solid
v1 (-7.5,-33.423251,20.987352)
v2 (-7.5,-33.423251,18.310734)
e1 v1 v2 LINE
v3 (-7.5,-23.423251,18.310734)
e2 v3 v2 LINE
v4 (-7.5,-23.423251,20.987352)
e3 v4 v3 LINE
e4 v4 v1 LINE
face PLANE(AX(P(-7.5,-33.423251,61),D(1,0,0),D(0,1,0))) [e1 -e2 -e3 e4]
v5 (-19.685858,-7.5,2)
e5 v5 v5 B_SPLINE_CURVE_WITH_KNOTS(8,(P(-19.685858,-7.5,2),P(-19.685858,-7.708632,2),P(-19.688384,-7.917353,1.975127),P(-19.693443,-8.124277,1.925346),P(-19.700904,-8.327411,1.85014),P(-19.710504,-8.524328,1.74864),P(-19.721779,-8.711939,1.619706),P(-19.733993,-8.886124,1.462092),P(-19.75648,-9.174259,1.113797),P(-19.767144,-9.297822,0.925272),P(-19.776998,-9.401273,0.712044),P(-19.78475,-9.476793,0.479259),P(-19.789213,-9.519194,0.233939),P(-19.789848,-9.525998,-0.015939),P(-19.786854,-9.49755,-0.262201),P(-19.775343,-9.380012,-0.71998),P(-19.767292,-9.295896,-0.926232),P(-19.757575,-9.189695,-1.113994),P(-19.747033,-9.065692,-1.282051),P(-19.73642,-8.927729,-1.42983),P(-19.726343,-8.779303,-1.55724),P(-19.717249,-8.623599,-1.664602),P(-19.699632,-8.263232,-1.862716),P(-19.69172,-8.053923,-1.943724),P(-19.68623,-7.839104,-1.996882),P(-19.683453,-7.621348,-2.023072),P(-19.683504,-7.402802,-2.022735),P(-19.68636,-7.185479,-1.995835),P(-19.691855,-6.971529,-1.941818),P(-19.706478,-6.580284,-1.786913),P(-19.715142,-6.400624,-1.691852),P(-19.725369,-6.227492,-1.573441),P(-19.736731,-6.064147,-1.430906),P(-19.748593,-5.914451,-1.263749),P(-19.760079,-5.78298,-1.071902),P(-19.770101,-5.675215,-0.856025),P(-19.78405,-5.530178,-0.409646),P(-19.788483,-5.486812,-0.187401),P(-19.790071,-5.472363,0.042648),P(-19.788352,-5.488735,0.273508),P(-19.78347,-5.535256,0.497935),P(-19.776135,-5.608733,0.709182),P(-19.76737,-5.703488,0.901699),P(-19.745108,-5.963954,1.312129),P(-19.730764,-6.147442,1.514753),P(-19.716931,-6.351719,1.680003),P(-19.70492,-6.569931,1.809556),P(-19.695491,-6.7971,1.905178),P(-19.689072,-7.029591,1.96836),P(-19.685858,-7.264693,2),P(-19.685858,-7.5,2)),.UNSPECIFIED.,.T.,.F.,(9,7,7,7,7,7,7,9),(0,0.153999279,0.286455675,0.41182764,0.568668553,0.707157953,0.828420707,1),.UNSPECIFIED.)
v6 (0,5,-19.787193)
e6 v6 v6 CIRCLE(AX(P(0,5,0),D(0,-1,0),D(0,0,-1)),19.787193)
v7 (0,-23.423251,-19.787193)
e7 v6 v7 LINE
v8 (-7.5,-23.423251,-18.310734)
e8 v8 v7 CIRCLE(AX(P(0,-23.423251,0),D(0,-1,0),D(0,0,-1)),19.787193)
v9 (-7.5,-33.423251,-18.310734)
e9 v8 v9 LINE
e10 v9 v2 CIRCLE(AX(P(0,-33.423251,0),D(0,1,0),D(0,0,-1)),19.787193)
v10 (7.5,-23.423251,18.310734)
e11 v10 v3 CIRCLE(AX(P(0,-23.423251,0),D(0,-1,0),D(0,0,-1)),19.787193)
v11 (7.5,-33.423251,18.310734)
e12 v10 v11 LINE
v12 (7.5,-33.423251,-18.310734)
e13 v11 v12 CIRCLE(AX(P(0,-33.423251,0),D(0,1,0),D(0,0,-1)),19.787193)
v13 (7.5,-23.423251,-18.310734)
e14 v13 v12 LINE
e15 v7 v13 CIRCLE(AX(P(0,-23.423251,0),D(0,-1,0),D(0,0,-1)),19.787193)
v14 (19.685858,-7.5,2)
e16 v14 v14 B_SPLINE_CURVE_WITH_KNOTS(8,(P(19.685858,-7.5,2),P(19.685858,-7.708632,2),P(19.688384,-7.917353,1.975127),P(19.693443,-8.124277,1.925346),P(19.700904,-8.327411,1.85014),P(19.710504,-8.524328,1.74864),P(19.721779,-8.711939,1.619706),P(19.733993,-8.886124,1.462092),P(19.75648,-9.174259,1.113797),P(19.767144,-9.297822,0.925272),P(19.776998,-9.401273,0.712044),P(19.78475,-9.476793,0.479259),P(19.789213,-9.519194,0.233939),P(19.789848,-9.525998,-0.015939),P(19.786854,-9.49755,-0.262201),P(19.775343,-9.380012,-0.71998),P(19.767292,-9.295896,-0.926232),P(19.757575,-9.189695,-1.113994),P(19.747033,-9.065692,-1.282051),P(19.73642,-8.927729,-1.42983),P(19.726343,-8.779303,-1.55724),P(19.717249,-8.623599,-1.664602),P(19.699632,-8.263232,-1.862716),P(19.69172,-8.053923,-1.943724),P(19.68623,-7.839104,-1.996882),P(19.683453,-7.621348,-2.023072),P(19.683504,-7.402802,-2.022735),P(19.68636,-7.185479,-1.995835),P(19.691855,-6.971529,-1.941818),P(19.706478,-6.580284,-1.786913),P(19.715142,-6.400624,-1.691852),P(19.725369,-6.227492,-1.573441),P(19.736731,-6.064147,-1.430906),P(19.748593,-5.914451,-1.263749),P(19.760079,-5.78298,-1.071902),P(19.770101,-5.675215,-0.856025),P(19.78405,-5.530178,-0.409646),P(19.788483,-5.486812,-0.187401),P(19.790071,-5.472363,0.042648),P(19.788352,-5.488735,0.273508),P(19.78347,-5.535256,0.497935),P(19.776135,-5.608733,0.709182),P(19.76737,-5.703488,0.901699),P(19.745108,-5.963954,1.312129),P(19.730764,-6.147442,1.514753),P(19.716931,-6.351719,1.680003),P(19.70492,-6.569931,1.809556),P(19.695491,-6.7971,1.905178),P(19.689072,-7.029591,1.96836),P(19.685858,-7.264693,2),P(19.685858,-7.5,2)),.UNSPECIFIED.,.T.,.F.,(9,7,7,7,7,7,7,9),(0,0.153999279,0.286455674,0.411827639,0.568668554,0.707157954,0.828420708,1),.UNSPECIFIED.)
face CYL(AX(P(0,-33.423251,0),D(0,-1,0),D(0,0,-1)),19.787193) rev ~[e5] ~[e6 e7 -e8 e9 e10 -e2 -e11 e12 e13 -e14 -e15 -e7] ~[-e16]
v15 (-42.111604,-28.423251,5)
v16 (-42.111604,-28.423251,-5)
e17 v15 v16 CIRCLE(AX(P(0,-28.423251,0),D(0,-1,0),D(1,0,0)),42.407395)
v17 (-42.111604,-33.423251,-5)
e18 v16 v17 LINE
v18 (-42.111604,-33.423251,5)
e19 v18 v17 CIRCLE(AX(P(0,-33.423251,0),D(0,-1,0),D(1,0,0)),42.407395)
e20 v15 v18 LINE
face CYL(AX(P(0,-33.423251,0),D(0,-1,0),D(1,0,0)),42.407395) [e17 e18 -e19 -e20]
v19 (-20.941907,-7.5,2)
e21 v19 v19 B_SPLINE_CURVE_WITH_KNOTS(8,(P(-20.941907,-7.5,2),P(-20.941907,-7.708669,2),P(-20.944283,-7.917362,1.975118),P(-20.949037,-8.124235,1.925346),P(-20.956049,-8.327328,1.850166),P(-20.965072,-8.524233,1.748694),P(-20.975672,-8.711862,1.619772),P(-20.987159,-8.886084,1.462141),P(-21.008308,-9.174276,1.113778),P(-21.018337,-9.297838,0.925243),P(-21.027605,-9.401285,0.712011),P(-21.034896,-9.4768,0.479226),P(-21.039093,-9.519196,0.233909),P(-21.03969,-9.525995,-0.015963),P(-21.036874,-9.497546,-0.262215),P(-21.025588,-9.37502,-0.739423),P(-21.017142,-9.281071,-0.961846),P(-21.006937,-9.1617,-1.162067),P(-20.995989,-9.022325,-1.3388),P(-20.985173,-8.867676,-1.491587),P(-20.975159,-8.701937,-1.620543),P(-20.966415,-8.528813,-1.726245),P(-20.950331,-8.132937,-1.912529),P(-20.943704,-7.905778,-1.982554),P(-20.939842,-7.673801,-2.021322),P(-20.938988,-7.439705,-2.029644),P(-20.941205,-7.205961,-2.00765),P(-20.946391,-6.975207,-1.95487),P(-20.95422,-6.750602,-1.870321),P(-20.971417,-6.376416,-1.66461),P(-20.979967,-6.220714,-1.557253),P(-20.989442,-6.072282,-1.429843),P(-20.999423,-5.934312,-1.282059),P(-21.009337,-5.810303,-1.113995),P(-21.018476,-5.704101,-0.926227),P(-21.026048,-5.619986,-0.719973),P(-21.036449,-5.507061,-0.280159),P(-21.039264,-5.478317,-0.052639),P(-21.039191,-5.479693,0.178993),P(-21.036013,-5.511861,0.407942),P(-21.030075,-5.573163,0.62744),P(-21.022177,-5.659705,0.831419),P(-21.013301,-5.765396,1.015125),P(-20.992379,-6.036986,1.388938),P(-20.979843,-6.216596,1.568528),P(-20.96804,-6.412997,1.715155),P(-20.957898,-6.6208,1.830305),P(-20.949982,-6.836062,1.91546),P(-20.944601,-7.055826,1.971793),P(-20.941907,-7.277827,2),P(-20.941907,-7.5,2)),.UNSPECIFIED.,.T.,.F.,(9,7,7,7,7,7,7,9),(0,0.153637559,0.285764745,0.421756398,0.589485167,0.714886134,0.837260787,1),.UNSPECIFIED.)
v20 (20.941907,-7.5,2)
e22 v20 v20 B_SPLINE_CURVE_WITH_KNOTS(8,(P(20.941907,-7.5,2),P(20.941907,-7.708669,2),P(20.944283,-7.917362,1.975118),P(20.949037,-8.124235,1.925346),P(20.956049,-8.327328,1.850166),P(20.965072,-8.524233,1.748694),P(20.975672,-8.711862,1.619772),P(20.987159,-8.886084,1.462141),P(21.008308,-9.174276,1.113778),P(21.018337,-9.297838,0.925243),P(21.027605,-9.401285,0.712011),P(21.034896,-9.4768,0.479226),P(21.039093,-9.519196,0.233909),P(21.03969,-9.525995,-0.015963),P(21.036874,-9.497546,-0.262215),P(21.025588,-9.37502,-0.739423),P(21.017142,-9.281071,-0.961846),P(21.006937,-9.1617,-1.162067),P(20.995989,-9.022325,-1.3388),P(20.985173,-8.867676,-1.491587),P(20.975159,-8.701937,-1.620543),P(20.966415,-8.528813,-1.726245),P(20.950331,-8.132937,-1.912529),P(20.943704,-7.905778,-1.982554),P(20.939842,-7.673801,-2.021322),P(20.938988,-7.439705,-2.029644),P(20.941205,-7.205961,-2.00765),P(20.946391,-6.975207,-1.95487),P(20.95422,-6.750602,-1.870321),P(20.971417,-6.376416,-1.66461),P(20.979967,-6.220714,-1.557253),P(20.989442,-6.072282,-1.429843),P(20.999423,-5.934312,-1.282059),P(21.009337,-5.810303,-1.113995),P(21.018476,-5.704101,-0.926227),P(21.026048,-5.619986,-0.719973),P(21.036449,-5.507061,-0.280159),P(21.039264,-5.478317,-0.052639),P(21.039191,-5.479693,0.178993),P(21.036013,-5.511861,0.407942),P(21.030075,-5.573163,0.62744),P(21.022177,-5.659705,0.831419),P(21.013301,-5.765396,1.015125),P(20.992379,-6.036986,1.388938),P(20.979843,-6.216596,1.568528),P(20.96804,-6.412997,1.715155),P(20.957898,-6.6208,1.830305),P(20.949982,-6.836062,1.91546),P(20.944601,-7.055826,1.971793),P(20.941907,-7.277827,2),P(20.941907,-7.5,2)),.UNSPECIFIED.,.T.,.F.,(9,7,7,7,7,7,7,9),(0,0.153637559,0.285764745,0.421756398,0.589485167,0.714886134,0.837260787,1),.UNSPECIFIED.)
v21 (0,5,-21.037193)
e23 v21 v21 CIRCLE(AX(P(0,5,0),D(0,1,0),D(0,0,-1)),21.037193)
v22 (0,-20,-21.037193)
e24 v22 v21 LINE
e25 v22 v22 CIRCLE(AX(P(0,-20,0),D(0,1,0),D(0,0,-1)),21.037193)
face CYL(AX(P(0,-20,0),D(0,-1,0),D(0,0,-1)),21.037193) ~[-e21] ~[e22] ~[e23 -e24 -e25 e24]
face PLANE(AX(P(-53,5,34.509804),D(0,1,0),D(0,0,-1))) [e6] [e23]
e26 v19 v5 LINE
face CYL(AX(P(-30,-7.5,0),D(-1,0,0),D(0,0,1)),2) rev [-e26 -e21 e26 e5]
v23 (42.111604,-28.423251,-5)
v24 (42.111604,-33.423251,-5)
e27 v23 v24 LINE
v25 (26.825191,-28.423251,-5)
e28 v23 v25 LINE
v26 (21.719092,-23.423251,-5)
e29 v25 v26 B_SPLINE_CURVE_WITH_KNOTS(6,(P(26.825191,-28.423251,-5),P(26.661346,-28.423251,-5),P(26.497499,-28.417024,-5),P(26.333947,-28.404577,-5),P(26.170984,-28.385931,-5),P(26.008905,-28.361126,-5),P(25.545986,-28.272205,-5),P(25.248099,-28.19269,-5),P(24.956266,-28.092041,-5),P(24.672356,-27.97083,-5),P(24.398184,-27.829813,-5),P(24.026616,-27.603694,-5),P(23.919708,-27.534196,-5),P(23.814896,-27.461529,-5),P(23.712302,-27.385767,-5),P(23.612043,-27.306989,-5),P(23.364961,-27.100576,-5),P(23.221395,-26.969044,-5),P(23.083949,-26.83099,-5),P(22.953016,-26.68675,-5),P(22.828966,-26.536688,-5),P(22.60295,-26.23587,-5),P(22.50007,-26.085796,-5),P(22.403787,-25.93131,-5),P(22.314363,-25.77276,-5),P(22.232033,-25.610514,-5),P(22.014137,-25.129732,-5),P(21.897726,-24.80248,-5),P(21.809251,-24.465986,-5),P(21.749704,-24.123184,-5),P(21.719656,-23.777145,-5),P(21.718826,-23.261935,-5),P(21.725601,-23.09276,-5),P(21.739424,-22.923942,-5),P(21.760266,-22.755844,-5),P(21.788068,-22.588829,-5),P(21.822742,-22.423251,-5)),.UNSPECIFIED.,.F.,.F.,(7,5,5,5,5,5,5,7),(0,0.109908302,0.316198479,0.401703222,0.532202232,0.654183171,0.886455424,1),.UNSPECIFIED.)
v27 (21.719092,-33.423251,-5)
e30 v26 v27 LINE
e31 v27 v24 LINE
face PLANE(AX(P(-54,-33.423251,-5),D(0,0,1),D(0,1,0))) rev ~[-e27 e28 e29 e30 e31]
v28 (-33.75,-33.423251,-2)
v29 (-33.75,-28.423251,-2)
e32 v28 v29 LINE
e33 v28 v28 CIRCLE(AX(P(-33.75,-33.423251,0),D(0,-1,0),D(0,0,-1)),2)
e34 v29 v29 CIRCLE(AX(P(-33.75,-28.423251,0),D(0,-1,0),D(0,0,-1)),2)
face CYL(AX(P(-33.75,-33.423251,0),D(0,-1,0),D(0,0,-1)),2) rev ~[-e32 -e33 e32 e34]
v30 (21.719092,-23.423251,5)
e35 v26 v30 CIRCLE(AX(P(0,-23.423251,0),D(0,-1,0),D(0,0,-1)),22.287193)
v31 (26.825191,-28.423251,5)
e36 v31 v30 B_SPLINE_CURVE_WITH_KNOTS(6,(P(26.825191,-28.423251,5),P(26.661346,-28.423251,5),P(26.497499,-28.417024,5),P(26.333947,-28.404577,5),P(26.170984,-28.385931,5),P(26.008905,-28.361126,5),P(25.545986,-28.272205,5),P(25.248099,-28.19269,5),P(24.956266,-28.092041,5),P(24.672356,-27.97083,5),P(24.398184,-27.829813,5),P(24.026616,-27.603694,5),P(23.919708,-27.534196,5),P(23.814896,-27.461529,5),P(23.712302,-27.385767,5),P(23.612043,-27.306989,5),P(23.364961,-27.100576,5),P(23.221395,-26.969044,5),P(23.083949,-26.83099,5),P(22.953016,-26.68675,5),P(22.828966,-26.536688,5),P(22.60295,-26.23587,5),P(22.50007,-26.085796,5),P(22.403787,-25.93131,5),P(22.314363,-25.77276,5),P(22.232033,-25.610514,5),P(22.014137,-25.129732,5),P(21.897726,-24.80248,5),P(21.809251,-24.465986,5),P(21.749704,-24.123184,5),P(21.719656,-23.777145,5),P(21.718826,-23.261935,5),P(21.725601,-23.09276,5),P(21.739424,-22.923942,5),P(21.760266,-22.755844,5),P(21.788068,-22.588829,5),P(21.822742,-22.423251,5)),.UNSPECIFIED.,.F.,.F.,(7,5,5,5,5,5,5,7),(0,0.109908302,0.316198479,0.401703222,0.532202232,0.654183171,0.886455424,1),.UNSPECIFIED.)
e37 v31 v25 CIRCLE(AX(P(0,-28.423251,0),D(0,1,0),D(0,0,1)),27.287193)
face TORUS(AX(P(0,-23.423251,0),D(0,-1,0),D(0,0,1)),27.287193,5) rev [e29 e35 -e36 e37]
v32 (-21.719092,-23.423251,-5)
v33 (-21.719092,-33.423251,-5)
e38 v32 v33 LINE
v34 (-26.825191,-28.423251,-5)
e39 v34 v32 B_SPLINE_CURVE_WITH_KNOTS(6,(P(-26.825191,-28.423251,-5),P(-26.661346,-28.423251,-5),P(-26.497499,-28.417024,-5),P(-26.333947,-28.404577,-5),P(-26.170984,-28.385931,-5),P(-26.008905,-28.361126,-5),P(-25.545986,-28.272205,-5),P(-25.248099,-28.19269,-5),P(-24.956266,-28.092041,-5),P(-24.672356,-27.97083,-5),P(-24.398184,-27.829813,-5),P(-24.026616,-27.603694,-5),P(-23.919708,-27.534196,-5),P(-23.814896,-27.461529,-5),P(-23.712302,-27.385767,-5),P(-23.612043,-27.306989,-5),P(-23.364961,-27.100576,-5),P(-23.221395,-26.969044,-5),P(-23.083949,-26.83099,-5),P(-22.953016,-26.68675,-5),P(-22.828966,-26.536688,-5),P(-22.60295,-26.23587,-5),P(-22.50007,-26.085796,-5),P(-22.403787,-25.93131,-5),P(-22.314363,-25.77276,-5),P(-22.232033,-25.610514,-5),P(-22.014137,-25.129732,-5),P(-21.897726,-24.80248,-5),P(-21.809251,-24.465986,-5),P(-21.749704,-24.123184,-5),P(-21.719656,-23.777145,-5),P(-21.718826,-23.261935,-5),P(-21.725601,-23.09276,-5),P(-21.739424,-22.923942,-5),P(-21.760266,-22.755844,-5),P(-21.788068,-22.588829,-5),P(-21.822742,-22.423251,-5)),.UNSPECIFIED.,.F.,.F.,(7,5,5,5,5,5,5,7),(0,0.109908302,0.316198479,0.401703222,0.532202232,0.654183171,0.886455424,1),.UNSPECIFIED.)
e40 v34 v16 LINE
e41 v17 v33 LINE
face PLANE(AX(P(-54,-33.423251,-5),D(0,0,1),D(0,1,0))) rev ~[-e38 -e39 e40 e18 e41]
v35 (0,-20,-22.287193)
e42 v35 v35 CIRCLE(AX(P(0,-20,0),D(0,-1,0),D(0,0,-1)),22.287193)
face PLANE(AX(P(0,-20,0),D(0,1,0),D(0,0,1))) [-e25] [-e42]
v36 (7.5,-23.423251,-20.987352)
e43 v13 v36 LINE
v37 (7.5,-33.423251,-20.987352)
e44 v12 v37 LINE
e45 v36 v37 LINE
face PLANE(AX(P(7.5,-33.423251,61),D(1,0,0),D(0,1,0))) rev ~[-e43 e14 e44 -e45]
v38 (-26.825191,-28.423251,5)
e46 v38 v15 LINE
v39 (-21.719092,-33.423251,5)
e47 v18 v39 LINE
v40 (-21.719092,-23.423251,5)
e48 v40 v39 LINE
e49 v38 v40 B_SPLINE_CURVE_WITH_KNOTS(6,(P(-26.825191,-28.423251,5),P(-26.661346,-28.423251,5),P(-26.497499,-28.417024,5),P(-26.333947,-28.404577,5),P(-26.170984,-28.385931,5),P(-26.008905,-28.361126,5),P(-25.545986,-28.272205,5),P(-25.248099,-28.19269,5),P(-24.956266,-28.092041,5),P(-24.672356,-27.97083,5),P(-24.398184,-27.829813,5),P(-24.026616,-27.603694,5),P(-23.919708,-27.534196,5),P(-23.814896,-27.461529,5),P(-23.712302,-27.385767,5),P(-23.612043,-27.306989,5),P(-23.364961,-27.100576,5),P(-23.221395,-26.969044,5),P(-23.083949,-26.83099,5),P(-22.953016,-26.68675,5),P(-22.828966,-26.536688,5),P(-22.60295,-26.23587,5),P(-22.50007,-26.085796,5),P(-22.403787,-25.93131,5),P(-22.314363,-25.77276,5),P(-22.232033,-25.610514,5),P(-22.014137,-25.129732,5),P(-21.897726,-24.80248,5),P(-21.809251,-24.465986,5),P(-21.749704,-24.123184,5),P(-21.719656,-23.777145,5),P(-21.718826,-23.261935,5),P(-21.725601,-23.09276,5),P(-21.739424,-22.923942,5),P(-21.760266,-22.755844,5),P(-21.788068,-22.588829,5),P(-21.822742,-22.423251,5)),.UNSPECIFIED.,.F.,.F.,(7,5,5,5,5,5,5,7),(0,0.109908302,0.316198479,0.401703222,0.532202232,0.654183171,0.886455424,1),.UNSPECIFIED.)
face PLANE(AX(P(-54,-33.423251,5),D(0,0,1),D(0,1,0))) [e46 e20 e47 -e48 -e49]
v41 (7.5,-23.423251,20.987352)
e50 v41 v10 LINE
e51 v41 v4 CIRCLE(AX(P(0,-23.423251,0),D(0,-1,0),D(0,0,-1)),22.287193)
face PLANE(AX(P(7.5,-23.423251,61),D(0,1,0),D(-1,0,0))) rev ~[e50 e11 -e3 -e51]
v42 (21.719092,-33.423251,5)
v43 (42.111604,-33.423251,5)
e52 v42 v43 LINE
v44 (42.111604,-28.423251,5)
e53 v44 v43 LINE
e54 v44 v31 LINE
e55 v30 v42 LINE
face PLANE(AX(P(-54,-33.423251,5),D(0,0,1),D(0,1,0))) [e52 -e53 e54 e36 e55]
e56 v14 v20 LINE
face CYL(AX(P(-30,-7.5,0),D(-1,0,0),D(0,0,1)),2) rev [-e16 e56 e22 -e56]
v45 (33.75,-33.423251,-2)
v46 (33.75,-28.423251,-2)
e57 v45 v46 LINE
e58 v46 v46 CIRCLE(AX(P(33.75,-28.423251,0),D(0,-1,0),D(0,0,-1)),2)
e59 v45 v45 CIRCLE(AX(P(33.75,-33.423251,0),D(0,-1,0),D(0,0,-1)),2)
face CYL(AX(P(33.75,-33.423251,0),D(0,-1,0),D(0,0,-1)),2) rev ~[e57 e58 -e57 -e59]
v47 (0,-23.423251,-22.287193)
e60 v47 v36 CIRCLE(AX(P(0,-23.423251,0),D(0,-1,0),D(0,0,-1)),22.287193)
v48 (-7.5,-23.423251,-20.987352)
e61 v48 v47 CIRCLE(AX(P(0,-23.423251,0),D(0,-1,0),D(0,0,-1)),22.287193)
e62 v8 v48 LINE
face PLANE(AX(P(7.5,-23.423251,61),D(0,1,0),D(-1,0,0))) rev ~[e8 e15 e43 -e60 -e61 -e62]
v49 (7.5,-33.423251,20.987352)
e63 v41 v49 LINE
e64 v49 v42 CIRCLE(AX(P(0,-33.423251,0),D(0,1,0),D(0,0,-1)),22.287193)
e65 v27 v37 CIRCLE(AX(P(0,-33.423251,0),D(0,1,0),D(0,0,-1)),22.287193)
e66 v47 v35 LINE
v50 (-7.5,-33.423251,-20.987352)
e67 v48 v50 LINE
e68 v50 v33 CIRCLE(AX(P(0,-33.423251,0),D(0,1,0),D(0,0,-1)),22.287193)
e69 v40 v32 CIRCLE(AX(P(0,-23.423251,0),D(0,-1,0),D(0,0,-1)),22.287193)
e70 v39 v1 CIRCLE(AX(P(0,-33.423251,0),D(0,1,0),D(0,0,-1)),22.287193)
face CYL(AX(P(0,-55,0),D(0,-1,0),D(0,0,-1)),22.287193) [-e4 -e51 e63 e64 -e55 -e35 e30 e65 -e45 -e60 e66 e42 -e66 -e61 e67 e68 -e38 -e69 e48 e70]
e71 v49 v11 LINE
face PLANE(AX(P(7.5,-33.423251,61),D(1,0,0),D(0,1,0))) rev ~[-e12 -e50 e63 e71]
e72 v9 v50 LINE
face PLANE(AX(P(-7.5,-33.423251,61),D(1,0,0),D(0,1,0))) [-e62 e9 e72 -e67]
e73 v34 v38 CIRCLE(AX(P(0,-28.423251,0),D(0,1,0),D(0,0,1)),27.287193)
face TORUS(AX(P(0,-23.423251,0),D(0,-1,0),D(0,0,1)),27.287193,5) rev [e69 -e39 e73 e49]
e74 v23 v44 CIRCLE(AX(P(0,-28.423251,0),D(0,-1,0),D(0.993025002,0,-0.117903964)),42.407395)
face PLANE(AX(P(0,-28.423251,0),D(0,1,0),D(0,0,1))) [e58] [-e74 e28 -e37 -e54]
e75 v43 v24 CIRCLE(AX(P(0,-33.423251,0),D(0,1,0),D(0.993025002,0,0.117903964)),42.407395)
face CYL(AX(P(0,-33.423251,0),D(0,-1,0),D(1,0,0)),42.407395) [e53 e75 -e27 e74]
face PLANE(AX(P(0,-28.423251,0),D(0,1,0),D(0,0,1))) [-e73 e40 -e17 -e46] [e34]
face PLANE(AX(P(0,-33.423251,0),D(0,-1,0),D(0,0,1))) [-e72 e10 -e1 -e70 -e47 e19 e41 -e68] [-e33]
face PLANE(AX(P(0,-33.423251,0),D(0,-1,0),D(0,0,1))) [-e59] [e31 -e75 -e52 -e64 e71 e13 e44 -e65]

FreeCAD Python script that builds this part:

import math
import FreeCAD as App
import Part
import Sketcher
from FreeCAD import Vector
Q = App.Units.Quantity


def add_polygon(sketch, points):
    """Adds a closed chain of lines whose ends are joined by coincident constraints."""
    first, n = sketch.GeometryCount, len(points)
    for a, b in zip(points, points[1:] + points[:1]):
        sketch.addGeometry(Part.LineSegment(App.Vector(*a, 0), App.Vector(*b, 0)), False)
    for i in range(n):
        sketch.addConstraint(Sketcher.Constraint("Coincident", first + i, 2, first + (i + 1) % n, 1))

doc = App.newDocument("Part")
params = doc.addObject("Spreadsheet::Sheet", "Params")
for row, (alias, value) in enumerate([
    ("sketch1_diameter", "68 mm"),
    ("pad1_length", "10 mm"),
    ("sketch2_diameter", "4 mm"),
    ("pocket1_length", "10 mm"),
    ("groove_angle", "360 deg"),
    ("groove2_angle", "360 deg"),
    ("pad2_length", "60 mm"),
    ("pocket3_length", "25 mm"),
    ("sketch8_diameter", "4 mm"),
    ("pocket6_length", "25 mm"),
    ("sketch11_diameter", "4 mm"),
    ("sketch13_width", "10 mm"),
    ("pad3_length", "66 mm"),
    ("pad3_length2", "54 mm"),
    ("pocket9_length", "66 mm"),
    ("sketch15_radius", "5 mm"),
    ("sketch15_height", "5 mm"),
    ("groove3_angle", "360 deg"),
    ("sketch16_height", "10 mm"),
    ("pocket10_length", "66 mm"),
    ("sketch17_diameter", "4 mm"),
    ("pocket11_length", "66 mm"),
    ("pocket12_length", "66 mm"),
    ("pad4_length", "12 mm"),
    ("sketch20_width", "15 mm"),
    ("sketch20_height", "10 mm"),
], start=1):
    params.set(f"A{row}", alias)
    params.set(f"B{row}", "=" + value)
    params.setAlias(f"B{row}", alias)

body = doc.addObject("PartDesign::Body", "Body")

sketch1 = body.newObject("Sketcher::SketchObject", "Sketch")
sketch1.AttachmentSupport = (doc.getObject("XZ_Plane"), [""])
sketch1.MapMode = "FlatFace"
sketch1.addGeometry(Part.Circle(Vector(0, 0, 0), Vector(0, 0, 1), 34), False)
sketch1.addConstraint([
    Sketcher.Constraint("Coincident", 0, 3, -1, 1),
    Sketcher.Constraint("Diameter", 0, Q("68 mm")),
])
sketch1.setExpression("Constraints[1]", "Params.sketch1_diameter")
pad1 = body.newObject("PartDesign::Pad", "Pad")
pad1.Profile = sketch1
pad1.setExpression("Length", "Params.pad1_length")
pad1.Reversed = True

sketch2 = body.newObject("Sketcher::SketchObject", "Sketch001")
sketch2.AttachmentSupport = (doc.getObject("XZ_Plane"), [""])
sketch2.MapMode = "FlatFace"
sketch2.addGeometry([
    Part.Circle(Vector(0, 0, 0), Vector(0, 0, 1), 19.8),
    Part.Circle(Vector(-22.1, 12.5, 0), Vector(0, 0, 1), 2),
    Part.Circle(Vector(22.1, 12.5, 0), Vector(0, 0, 1), 2),
    Part.Circle(Vector(22.1, -12.5, 0), Vector(0, 0, 1), 2),
    Part.Circle(Vector(-22.1, -12.5, 0), Vector(0, 0, 1), 2),
], False)
sketch2.addConstraint([
    Sketcher.Constraint("Coincident", 0, 3, -1, 1),
    Sketcher.Constraint("Equal", 1, 2),
    Sketcher.Constraint("Equal", 2, 3),
    Sketcher.Constraint("Equal", 3, 4),
    Sketcher.Constraint("Symmetric", 1, 3, 3, 3, -1, 1),
    Sketcher.Constraint("Symmetric", 2, 3, 4, 3, -1, 1),
    Sketcher.Constraint("Symmetric", 1, 3, 2, 3, -2),
    Sketcher.Constraint("Diameter", 1, Q("4 mm")),
    Sketcher.Constraint("DistanceY", 3, 3, 2, 3, Q("25 mm")),
    Sketcher.Constraint("DistanceX", 1, 3, -1, 1, Q("22.1 mm")),
    Sketcher.Constraint("Diameter", 0, Q("39.574385 mm")),
])
sketch2.setExpression("Constraints[7]", "Params.sketch2_diameter")
pocket1 = body.newObject("PartDesign::Pocket", "Pocket")
pocket1.Profile = sketch2
pocket1.setExpression("Length", "Params.pocket1_length")

sketch3 = body.newObject("Sketcher::SketchObject", "Sketch002")
sketch3.AttachmentSupport = (doc.getObject("YZ_Plane"), [""])
sketch3.MapMode = "FlatFace"
sketch3.addGeometry(Part.Circle(Vector(5, 34, 0), Vector(0, 0, 1), 4.8), False)
sketch3.addConstraint([
    Sketcher.Constraint("DistanceX", -1, 1, 0, 3, Q("5 mm")),
    Sketcher.Constraint("DistanceY", -1, 1, 0, 3, Q("34 mm")),
    Sketcher.Constraint("Diameter", 0, Q("9.675063 mm")),
])
groove = body.newObject("PartDesign::Groove", "Groove")
groove.Profile = sketch3
groove.ReferenceAxis = (sketch3, ["H_Axis"])
groove.setExpression("Angle", "Params.groove_angle")

sketch4 = body.newObject("Sketcher::SketchObject", "Sketch003")
sketch4.AttachmentSupport = (doc.getObject("YZ_Plane"), [""])
sketch4.MapMode = "FlatFace"
add_polygon(sketch4, [(5, 34), (0.2, 34), (0.2, 29.2), (5, 29.2)])
sketch4.addConstraint([
    Sketcher.Constraint("Horizontal", 0),
    Sketcher.Constraint("Vertical", 1),
    Sketcher.Constraint("Horizontal", 2),
    Sketcher.Constraint("Vertical", 3),
    Sketcher.Constraint("Equal", 2, 1),
    Sketcher.Constraint("DistanceY", -1, 1, 0, 2, Q("34 mm")),
    Sketcher.Constraint("DistanceX", -1, 1, 2, 2, Q("5 mm")),
    Sketcher.Constraint("DistanceX", 0, 2, 0, 1, Q("4.837531 mm")),
])
groove2 = body.newObject("PartDesign::Groove", "Groove001")
groove2.Profile = sketch4
groove2.ReferenceAxis = (sketch4, ["H_Axis"])
groove2.setExpression("Angle", "Params.groove2_angle")

sketch5 = body.newObject("Sketcher::SketchObject", "Sketch004")
sketch5.AttachmentSupport = (doc.getObject("YZ_Plane"), [""])
sketch5.MapMode = "FlatFace"
add_polygon(sketch5, [(5, 37), (-4, 37), (-4, -35), (5, -35)])
sketch5.addConstraint([
    Sketcher.Constraint("Horizontal", 0),
    Sketcher.Constraint("Vertical", 1),
    Sketcher.Constraint("Horizontal", 2),
    Sketcher.Constraint("Vertical", 3),
    Sketcher.Constraint("DistanceX", -1, 1, 2, 2, Q("5 mm")),
    Sketcher.Constraint("DistanceX", 0, 2, 0, 1, Q("8.896778 mm")),
    Sketcher.Constraint("DistanceY", 1, 2, 1, 1, Q("72.361657 mm")),
    Sketcher.Constraint("DistanceY", -1, 1, 0, 2, Q("37.08213 mm")),
])
pocket2 = body.newObject("PartDesign::Pocket", "Pocket001")
pocket2.Profile = sketch5
pocket2.Type = "ThroughAll"
pocket2.Midplane = True

sketch6 = body.newObject("Sketcher::SketchObject", "Sketch005")
sketch6.AttachmentSupport = (doc.getObject("XZ_Plane"), [""])
sketch6.MapMode = "FlatFace"
sketch6.AttachmentOffset = App.Placement(Vector(0, 0, 55), App.Rotation())
sketch6.addGeometry([
    Part.Circle(Vector(0, 0, 0), Vector(0, 0, 1), 22),
    Part.Circle(Vector(0, 0, 0), Vector(0, 0, 1), 20),
], False)
sketch6.addConstraint([
    Sketcher.Constraint("Coincident", 0, 3, -1, 1),
    Sketcher.Constraint("Coincident", 1, 3, -1, 1),
    Sketcher.Constraint("Diameter", 0, Q("44.574385 mm")),
    Sketcher.Constraint("Diameter", 1, Q("39.574385 mm")),
])
pad2 = body.newObject("PartDesign::Pad", "Pad001")
pad2.Profile = sketch6
pad2.setExpression("Length", "Params.pad2_length")
pad2.Reversed = True

sketch7 = body.newObject("Sketcher::SketchObject", "Sketch006")
sketch7.AttachmentSupport = (doc.getObject("XZ_Plane"), [""])
sketch7.MapMode = "FlatFace"
sketch7.AttachmentOffset = App.Placement(Vector(0, 0, 55), App.Rotation())
sketch7.addGeometry([
    Part.Circle(Vector(0, 0, 0), Vector(0, 0, 1), 21),
    Part.Circle(Vector(0, 0, 0), Vector(0, 0, 1), 20),
], False)
sketch7.addConstraint([
    Sketcher.Constraint("Coincident", 0, 3, -1, 1),
    Sketcher.Constraint("Coincident", 1, 3, -1, 1),
    Sketcher.Constraint("Diameter", 0, Q("42.074385 mm")),
    Sketcher.Constraint("Diameter", 1, Q("39.574385 mm")),
])
pocket3 = body.newObject("PartDesign::Pocket", "Pocket002")
pocket3.Profile = sketch7
pocket3.setExpression("Length", "Params.pocket3_length")

sketch8 = body.newObject("Sketcher::SketchObject", "Sketch007")
sketch8.AttachmentSupport = (doc.getObject("YZ_Plane"), [""])
sketch8.MapMode = "FlatFace"
sketch8.addGeometry(Part.Circle(Vector(-42.5, 0, 0), Vector(0, 0, 1), 2), False)
sketch8.addConstraint([
    Sketcher.Constraint("PointOnObject", 0, 3, -1),
    Sketcher.Constraint("Diameter", 0, Q("4 mm")),
    Sketcher.Constraint("DistanceX", 0, 3, -1, 1, Q("42.5 mm")),
])
sketch8.setExpression("Constraints[1]", "Params.sketch8_diameter")
pocket4 = body.newObject("PartDesign::Pocket", "Pocket003")
pocket4.Profile = sketch8
pocket4.Type = "ThroughAll"
pocket4.Midplane = True

sketch9 = body.newObject("Sketcher::SketchObject", "Sketch008")
sketch9.AttachmentSupport = (doc.getObject("YZ_Plane"), [""])
sketch9.MapMode = "FlatFace"
add_polygon(sketch9, [(11, 35), (5, 35), (5, -35), (11, -35)])
sketch9.addConstraint([
    Sketcher.Constraint("Horizontal", 0),
    Sketcher.Constraint("Vertical", 1),
    Sketcher.Constraint("Horizontal", 2),
    Sketcher.Constraint("Vertical", 3),
    Sketcher.Constraint("DistanceX", -1, 1, 0, 2, Q("5 mm")),
    Sketcher.Constraint("DistanceX", 0, 2, 0, 1, Q("5.737808 mm")),
    Sketcher.Constraint("DistanceY", 1, 2, 1, 1, Q("69.351433 mm")),
    Sketcher.Constraint("DistanceY", 1, 2, -1, 1, Q("34.841629 mm")),
])
pocket5 = body.newObject("PartDesign::Pocket", "Pocket004")
pocket5.Profile = sketch9
pocket5.Type = "ThroughAll"
pocket5.Midplane = True

sketch10 = body.newObject("Sketcher::SketchObject", "Sketch009")
sketch10.AttachmentSupport = (doc.getObject("XZ_Plane"), [""])
sketch10.MapMode = "FlatFace"
sketch10.AttachmentOffset = App.Placement(Vector(0, 0, 20), App.Rotation())
sketch10.addGeometry([
    Part.Circle(Vector(0, 0, 0), Vector(0, 0, 1), 22),
    Part.Circle(Vector(0, 0, 0), Vector(0, 0, 1), 21),
], False)
sketch10.addConstraint([
    Sketcher.Constraint("Coincident", 0, 3, -1, 1),
    Sketcher.Constraint("Coincident", 1, 3, -1, 1),
    Sketcher.Constraint("Diameter", 0, Q("44.574385 mm")),
    Sketcher.Constraint("Diameter", 1, Q("42.074385 mm")),
])
pocket6 = body.newObject("PartDesign::Pocket", "Pocket005")
pocket6.Profile = sketch10
pocket6.setExpression("Length", "Params.pocket6_length")

sketch11 = body.newObject("Sketcher::SketchObject", "Sketch010")
sketch11.AttachmentSupport = (doc.getObject("YZ_Plane"), [""])
sketch11.MapMode = "FlatFace"
sketch11.addGeometry(Part.Circle(Vector(-7.5, 0, 0), Vector(0, 0, 1), 2), False)
sketch11.addConstraint([
    Sketcher.Constraint("PointOnObject", 0, 3, -1),
    Sketcher.Constraint("Diameter", 0, Q("4 mm")),
    Sketcher.Constraint("DistanceX", 0, 3, -1, 1, Q("7.5 mm")),
])
sketch11.setExpression("Constraints[1]", "Params.sketch11_diameter")
pocket7 = body.newObject("PartDesign::Pocket", "Pocket006")
pocket7.Profile = sketch11
pocket7.Type = "ThroughAll"
pocket7.Midplane = True

sketch12 = body.newObject("Sketcher::SketchObject", "Sketch011")
sketch12.AttachmentSupport = (doc.getObject("YZ_Plane"), [""])
sketch12.MapMode = "FlatFace"
add_polygon(sketch12, [(-33, 22), (-55, 22), (-55, -22), (-33, -22)])
sketch12.addConstraint([
    Sketcher.Constraint("Horizontal", 0),
    Sketcher.Constraint("Vertical", 1),
    Sketcher.Constraint("Horizontal", 2),
    Sketcher.Constraint("Vertical", 3),
    Sketcher.Constraint("DistanceX", 0, 2, -1, 1, Q("55 mm")),
    Sketcher.Constraint("DistanceX", 0, 2, 0, 1, Q("21.576749 mm")),
    Sketcher.Constraint("DistanceY", 1, 2, 1, 1, Q("44.574385 mm")),
    Sketcher.Constraint("DistanceY", -1, 1, 0, 2, Q("22.287193 mm")),
])
pocket8 = body.newObject("PartDesign::Pocket", "Pocket007")
pocket8.Profile = sketch12
pocket8.Type = "ThroughAll"
pocket8.Midplane = True

sketch13 = body.newObject("Sketcher::SketchObject", "Sketch012")
sketch13.AttachmentSupport = (doc.getObject("YZ_Plane"), [""])
sketch13.MapMode = "FlatFace"
add_polygon(sketch13, [(-23, 5), (-33, 5), (-33, -5), (-23, -5)])
sketch13.addConstraint([
    Sketcher.Constraint("Horizontal", 0),
    Sketcher.Constraint("Vertical", 1),
    Sketcher.Constraint("Horizontal", 2),
    Sketcher.Constraint("Vertical", 3),
    Sketcher.Constraint("Equal", 2, 1),
    Sketcher.Constraint("DistanceX", 0, 2, 0, 1, Q("10 mm")),
    Sketcher.Constraint("DistanceY", -1, 1, 0, 2, Q("5 mm")),
    Sketcher.Constraint("DistanceX", 0, 2, -1, 1, Q("33.423251 mm")),
])
sketch13.setExpression("Constraints[9]", "Params.sketch13_width")
pad3 = body.newObject("PartDesign::Pad", "Pad002")
pad3.Profile = sketch13
pad3.Type = "TwoLengths"
pad3.setExpression("Length", "Params.pad3_length")
pad3.setExpression("Length2", "Params.pad3_length2")

sketch14 = body.newObject("Sketcher::SketchObject", "Sketch013")
sketch14.AttachmentSupport = (doc.getObject("XZ_Plane"), [""])
sketch14.MapMode = "FlatFace"
sketch14.AttachmentOffset = App.Placement(Vector(0, 0, 89.423251), App.Rotation())
sketch14.addGeometry(Part.Circle(Vector(0, 0, 0), Vector(0, 0, 1), 20), False)
sketch14.addConstraint([
    Sketcher.Constraint("Coincident", 0, 3, -1, 1),
    Sketcher.Constraint("Diameter", 0, Q("39.574385 mm")),
])
pocket9 = body.newObject("PartDesign::Pocket", "Pocket008")
pocket9.Profile = sketch14
pocket9.setExpression("Length", "Params.pocket9_length")

sketch15 = body.newObject("Sketcher::SketchObject", "Sketch014")
sketch15.AttachmentSupport = (doc.getObject("XY_Plane"), [""])
sketch15.MapMode = "FlatFace"
sketch15.addGeometry([
    Part.LineSegment(Vector(-57, -28, 0), Vector(-27, -28, 0)),
    Part.ArcOfCircle(Part.Circle(Vector(-27, -23, 0), Vector(0, 0, 1), 5), math.radians(-90), math.radians(180)),
    Part.LineSegment(Vector(-32, -23, 0), Vector(-57, -23, 0)),
    Part.LineSegment(Vector(-57, -23, 0), Vector(-57, -28, 0)),
], False)
sketch15.addConstraint([
    Sketcher.Constraint("Tangent", 0, 2, 1, 1),
    Sketcher.Constraint("Coincident", 1, 2, 2, 1),
    Sketcher.Constraint("Coincident", 2, 2, 3, 1),
    Sketcher.Constraint("Coincident", 3, 2, 0, 1),
    Sketcher.Constraint("Horizontal", 0),
    Sketcher.Constraint("Horizontal", 2),
    Sketcher.Constraint("Vertical", 3),
    Sketcher.Constraint("Radius", 1, Q("5 mm")),
    Sketcher.Constraint("DistanceY", 3, 2, 3, 1, Q("5 mm")),
    Sketcher.Constraint("DistanceX", 0, 1, 0, 2, Q("29.603039 mm")),
    Sketcher.Constraint("DistanceY", 1, 3, -1, 1, Q("23.423251 mm")),
    Sketcher.Constraint("DistanceX", 2, 2, -1, 1, Q("56.890232 mm")),
])
sketch15.setExpression("Constraints[7]", "Params.sketch15_radius")
sketch15.setExpression("Constraints[8]", "Params.sketch15_height")
groove3 = body.newObject("PartDesign::Groove", "Groove002")
groove3.Profile = sketch15
groove3.ReferenceAxis = (sketch15, ["V_Axis"])
groove3.setExpression("Angle", "Params.groove3_angle")

sketch16 = body.newObject("Sketcher::SketchObject", "Sketch015")
sketch16.AttachmentSupport = (doc.getObject("XY_Plane"), [""])
sketch16.MapMode = "FlatFace"
sketch16.AttachmentOffset = App.Placement(Vector(0, 0, 5), App.Rotation())
add_polygon(sketch16, [(57, -23), (57, -33), (66, -33), (66, -23)])
sketch16.addConstraint([
    Sketcher.Constraint("Vertical", 0),
    Sketcher.Constraint("Horizontal", 1),
    Sketcher.Constraint("Vertical", 2),
    Sketcher.Constraint("Horizontal", 3),
    Sketcher.Constraint("DistanceY", 0, 2, 0, 1, Q("10 mm")),
    Sketcher.Constraint("DistanceX", -1, 1, 1, 2, Q("66 mm")),
    Sketcher.Constraint("DistanceX", 1, 1, 1, 2, Q("9.329916 mm")),
    Sketcher.Constraint("DistanceY", 0, 2, -1, 1, Q("33.423251 mm")),
])
sketch16.setExpression("Constraints[8]", "Params.sketch16_height")
pocket10 = body.newObject("PartDesign::Pocket", "Pocket009")
pocket10.Profile = sketch16
pocket10.setExpression("Length", "Params.pocket10_length")

sketch17 = body.newObject("Sketcher::SketchObject", "Sketch016")
sketch17.AttachmentSupport = (doc.getObject("XZ_Plane"), [""])
sketch17.MapMode = "FlatFace"
sketch17.AttachmentOffset = App.Placement(Vector(0, 0, 33.423251), App.Rotation())
sketch17.addGeometry([
    Part.Circle(Vector(-33.8, 0, 0), Vector(0, 0, 1), 2),
    Part.Circle(Vector(33.8, 0, 0), Vector(0, 0, 1), 2),
], False)
sketch17.addConstraint([
    Sketcher.Constraint("Equal", 0, 1),
    Sketcher.Constraint("Symmetric", 0, 3, 1, 3, -1, 1),
    Sketcher.Constraint("PointOnObject", 0, 3, -1),
    Sketcher.Constraint("Diameter", 0, Q("4 mm")),
    Sketcher.Constraint("DistanceX", 0, 3, 1, 3, Q("67.5 mm")),
])
sketch17.setExpression("Constraints[3]", "Params.sketch17_diameter")
pocket11 = body.newObject("PartDesign::Pocket", "Pocket010")
pocket11.Profile = sketch17
pocket11.setExpression("Length", "Params.pocket11_length")

sketch18 = body.newObject("Sketcher::SketchObject", "Sketch017")
sketch18.AttachmentSupport = (doc.getObject("XZ_Plane"), [""])
sketch18.MapMode = "FlatFace"
sketch18.AttachmentOffset = App.Placement(Vector(0, 0, 33.423251), App.Rotation())
sketch18.addGeometry([
    Part.Circle(Vector(0, 0, 0), Vector(0, 0, 1), 59),
    Part.Circle(Vector(0, 0, 0), Vector(0, 0, 1), 42),
], False)
sketch18.addConstraint([
    Sketcher.Constraint("Coincident", 0, 3, -1, 1),
    Sketcher.Constraint("Coincident", 1, 3, -1, 1),
    Sketcher.Constraint("Diameter", 1, Q("84.814791 mm")),
    Sketcher.Constraint("Diameter", 0, Q("117.140106 mm")),
])
pocket12 = body.newObject("PartDesign::Pocket", "Pocket011")
pocket12.Profile = sketch18
pocket12.setExpression("Length", "Params.pocket12_length")

sketch19 = body.newObject("Sketcher::SketchObject", "Sketch018")
sketch19.AttachmentSupport = (doc.getObject("XZ_Plane"), [""])
sketch19.MapMode = "FlatFace"
sketch19.AttachmentOffset = App.Placement(Vector(0, 0, 33.423251), App.Rotation())
sketch19.addGeometry([
    Part.Circle(Vector(0, 0, 0), Vector(0, 0, 1), 21),
    Part.Circle(Vector(0, 0, 0), Vector(0, 0, 1), 20),
], False)
sketch19.addConstraint([
    Sketcher.Constraint("Coincident", 0, 3, -1, 1),
    Sketcher.Constraint("Coincident", 1, 3, -1, 1),
    Sketcher.Constraint("Diameter", 0, Q("42.074385 mm")),
    Sketcher.Constraint("Diameter", 1, Q("39.574385 mm")),
])
pad4 = body.newObject("PartDesign::Pad", "Pad003")
pad4.Profile = sketch19
pad4.setExpression("Length", "Params.pad4_length")
pad4.Reversed = True

sketch20 = body.newObject("Sketcher::SketchObject", "Sketch019")
sketch20.AttachmentSupport = (doc.getObject("XY_Plane"), [""])
sketch20.MapMode = "FlatFace"
sketch20.AttachmentOffset = App.Placement(Vector(0, 0, -5), App.Rotation())
add_polygon(sketch20, [(8, -23), (8, -33), (-8, -33), (-8, -23)])
sketch20.addConstraint([
    Sketcher.Constraint("Vertical", 0),
    Sketcher.Constraint("Horizontal", 1),
    Sketcher.Constraint("Vertical", 2),
    Sketcher.Constraint("Horizontal", 3),
    Sketcher.Constraint("DistanceX", 1, 2, 1, 1, Q("15 mm")),
    Sketcher.Constraint("DistanceY", 0, 2, 0, 1, Q("10 mm")),
    Sketcher.Constraint("DistanceX", -1, 1, 0, 2, Q("7.5 mm")),
    Sketcher.Constraint("DistanceY", 0, 2, -1, 1, Q("33.423251 mm")),
])
sketch20.setExpression("Constraints[8]", "Params.sketch20_width")
sketch20.setExpression("Constraints[9]", "Params.sketch20_height")
pocket13 = body.newObject("PartDesign::Pocket", "Pocket012")
pocket13.Profile = sketch20
pocket13.Type = "ThroughAll"
pocket13.Midplane = True

doc.recompute()
